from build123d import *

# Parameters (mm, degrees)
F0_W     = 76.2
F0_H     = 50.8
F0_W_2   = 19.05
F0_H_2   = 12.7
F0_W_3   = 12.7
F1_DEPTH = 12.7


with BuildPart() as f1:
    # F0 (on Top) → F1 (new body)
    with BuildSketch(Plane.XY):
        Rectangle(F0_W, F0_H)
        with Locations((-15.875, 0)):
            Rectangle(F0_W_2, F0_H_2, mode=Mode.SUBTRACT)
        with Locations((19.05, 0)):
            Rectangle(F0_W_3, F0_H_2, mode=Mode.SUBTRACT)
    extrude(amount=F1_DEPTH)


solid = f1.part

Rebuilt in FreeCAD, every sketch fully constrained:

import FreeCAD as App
import Part
import Sketcher
from FreeCAD import Vector
Q = App.Units.Quantity


def add_polygon(sketch, points):
    """Adds a closed chain of lines whose ends are joined by coincident constraints."""
    first, n = sketch.GeometryCount, len(points)
    for a, b in zip(points, points[1:] + points[:1]):
        sketch.addGeometry(Part.LineSegment(App.Vector(*a, 0), App.Vector(*b, 0)), False)
    for i in range(n):
        sketch.addConstraint(Sketcher.Constraint("Coincident", first + i, 2, first + (i + 1) % n, 1))

doc = App.newDocument("Part")
body = doc.addObject("PartDesign::Body", "Body")

sketch1 = doc.addObject("Sketcher::SketchObject", "Sketch")
body.addObject(sketch1)
sketch1.AttachmentSupport = (doc.XY_Plane, [""])
sketch1.MapMode = "FlatFace"
add_polygon(sketch1, [(-38, 25), (-38, -25), (38, -25), (38, 25)])
add_polygon(sketch1, [(-6, -6), (-25, -6), (-25, 6), (-6, 6)])
add_polygon(sketch1, [(25, -6), (13, -6), (13, 6), (25, 6)])
sketch1.addConstraint([
    Sketcher.Constraint("Vertical", 0),
    Sketcher.Constraint("Horizontal", 1),
    Sketcher.Constraint("Vertical", 2),
    Sketcher.Constraint("Horizontal", 3),
    Sketcher.Constraint("Horizontal", 4),
    Sketcher.Constraint("Vertical", 5),
    Sketcher.Constraint("Horizontal", 6),
    Sketcher.Constraint("Vertical", 7),
    Sketcher.Constraint("Horizontal", 8),
    Sketcher.Constraint("Vertical", 9),
    Sketcher.Constraint("Horizontal", 10),
    Sketcher.Constraint("Vertical", 11),
    Sketcher.Constraint("Symmetric", 0, 2, 2, 2, -1, 1),
    Sketcher.Constraint("Symmetric", 4, 2, 10, 2, -1, 1),
    Sketcher.Constraint("Horizontal", 7, 2, 8, 2),
    Sketcher.Constraint("Horizontal", 6, 2, 9, 2),
    Sketcher.Constraint("Equal", 10, 5),
    Sketcher.Constraint("DistanceX", 1, 1, 1, 2, Q("3 in")),
    Sketcher.Constraint("DistanceY", 0, 2, 0, 1, Q("2 in")),
    Sketcher.Constraint("DistanceX", 8, 2, 8, 1, Q("0.5 in")),
    Sketcher.Constraint("DistanceX", 4, 2, -1, 1, Q("1 in")),
    Sketcher.Constraint("DistanceX", 4, 2, 4, 1, Q("0.75 in")),
])
pad1 = doc.addObject("PartDesign::Pad", "Pad")
body.addObject(pad1)
pad1.Profile = sketch1
pad1.Length = Q("0.5 in")

doc.recompute()
